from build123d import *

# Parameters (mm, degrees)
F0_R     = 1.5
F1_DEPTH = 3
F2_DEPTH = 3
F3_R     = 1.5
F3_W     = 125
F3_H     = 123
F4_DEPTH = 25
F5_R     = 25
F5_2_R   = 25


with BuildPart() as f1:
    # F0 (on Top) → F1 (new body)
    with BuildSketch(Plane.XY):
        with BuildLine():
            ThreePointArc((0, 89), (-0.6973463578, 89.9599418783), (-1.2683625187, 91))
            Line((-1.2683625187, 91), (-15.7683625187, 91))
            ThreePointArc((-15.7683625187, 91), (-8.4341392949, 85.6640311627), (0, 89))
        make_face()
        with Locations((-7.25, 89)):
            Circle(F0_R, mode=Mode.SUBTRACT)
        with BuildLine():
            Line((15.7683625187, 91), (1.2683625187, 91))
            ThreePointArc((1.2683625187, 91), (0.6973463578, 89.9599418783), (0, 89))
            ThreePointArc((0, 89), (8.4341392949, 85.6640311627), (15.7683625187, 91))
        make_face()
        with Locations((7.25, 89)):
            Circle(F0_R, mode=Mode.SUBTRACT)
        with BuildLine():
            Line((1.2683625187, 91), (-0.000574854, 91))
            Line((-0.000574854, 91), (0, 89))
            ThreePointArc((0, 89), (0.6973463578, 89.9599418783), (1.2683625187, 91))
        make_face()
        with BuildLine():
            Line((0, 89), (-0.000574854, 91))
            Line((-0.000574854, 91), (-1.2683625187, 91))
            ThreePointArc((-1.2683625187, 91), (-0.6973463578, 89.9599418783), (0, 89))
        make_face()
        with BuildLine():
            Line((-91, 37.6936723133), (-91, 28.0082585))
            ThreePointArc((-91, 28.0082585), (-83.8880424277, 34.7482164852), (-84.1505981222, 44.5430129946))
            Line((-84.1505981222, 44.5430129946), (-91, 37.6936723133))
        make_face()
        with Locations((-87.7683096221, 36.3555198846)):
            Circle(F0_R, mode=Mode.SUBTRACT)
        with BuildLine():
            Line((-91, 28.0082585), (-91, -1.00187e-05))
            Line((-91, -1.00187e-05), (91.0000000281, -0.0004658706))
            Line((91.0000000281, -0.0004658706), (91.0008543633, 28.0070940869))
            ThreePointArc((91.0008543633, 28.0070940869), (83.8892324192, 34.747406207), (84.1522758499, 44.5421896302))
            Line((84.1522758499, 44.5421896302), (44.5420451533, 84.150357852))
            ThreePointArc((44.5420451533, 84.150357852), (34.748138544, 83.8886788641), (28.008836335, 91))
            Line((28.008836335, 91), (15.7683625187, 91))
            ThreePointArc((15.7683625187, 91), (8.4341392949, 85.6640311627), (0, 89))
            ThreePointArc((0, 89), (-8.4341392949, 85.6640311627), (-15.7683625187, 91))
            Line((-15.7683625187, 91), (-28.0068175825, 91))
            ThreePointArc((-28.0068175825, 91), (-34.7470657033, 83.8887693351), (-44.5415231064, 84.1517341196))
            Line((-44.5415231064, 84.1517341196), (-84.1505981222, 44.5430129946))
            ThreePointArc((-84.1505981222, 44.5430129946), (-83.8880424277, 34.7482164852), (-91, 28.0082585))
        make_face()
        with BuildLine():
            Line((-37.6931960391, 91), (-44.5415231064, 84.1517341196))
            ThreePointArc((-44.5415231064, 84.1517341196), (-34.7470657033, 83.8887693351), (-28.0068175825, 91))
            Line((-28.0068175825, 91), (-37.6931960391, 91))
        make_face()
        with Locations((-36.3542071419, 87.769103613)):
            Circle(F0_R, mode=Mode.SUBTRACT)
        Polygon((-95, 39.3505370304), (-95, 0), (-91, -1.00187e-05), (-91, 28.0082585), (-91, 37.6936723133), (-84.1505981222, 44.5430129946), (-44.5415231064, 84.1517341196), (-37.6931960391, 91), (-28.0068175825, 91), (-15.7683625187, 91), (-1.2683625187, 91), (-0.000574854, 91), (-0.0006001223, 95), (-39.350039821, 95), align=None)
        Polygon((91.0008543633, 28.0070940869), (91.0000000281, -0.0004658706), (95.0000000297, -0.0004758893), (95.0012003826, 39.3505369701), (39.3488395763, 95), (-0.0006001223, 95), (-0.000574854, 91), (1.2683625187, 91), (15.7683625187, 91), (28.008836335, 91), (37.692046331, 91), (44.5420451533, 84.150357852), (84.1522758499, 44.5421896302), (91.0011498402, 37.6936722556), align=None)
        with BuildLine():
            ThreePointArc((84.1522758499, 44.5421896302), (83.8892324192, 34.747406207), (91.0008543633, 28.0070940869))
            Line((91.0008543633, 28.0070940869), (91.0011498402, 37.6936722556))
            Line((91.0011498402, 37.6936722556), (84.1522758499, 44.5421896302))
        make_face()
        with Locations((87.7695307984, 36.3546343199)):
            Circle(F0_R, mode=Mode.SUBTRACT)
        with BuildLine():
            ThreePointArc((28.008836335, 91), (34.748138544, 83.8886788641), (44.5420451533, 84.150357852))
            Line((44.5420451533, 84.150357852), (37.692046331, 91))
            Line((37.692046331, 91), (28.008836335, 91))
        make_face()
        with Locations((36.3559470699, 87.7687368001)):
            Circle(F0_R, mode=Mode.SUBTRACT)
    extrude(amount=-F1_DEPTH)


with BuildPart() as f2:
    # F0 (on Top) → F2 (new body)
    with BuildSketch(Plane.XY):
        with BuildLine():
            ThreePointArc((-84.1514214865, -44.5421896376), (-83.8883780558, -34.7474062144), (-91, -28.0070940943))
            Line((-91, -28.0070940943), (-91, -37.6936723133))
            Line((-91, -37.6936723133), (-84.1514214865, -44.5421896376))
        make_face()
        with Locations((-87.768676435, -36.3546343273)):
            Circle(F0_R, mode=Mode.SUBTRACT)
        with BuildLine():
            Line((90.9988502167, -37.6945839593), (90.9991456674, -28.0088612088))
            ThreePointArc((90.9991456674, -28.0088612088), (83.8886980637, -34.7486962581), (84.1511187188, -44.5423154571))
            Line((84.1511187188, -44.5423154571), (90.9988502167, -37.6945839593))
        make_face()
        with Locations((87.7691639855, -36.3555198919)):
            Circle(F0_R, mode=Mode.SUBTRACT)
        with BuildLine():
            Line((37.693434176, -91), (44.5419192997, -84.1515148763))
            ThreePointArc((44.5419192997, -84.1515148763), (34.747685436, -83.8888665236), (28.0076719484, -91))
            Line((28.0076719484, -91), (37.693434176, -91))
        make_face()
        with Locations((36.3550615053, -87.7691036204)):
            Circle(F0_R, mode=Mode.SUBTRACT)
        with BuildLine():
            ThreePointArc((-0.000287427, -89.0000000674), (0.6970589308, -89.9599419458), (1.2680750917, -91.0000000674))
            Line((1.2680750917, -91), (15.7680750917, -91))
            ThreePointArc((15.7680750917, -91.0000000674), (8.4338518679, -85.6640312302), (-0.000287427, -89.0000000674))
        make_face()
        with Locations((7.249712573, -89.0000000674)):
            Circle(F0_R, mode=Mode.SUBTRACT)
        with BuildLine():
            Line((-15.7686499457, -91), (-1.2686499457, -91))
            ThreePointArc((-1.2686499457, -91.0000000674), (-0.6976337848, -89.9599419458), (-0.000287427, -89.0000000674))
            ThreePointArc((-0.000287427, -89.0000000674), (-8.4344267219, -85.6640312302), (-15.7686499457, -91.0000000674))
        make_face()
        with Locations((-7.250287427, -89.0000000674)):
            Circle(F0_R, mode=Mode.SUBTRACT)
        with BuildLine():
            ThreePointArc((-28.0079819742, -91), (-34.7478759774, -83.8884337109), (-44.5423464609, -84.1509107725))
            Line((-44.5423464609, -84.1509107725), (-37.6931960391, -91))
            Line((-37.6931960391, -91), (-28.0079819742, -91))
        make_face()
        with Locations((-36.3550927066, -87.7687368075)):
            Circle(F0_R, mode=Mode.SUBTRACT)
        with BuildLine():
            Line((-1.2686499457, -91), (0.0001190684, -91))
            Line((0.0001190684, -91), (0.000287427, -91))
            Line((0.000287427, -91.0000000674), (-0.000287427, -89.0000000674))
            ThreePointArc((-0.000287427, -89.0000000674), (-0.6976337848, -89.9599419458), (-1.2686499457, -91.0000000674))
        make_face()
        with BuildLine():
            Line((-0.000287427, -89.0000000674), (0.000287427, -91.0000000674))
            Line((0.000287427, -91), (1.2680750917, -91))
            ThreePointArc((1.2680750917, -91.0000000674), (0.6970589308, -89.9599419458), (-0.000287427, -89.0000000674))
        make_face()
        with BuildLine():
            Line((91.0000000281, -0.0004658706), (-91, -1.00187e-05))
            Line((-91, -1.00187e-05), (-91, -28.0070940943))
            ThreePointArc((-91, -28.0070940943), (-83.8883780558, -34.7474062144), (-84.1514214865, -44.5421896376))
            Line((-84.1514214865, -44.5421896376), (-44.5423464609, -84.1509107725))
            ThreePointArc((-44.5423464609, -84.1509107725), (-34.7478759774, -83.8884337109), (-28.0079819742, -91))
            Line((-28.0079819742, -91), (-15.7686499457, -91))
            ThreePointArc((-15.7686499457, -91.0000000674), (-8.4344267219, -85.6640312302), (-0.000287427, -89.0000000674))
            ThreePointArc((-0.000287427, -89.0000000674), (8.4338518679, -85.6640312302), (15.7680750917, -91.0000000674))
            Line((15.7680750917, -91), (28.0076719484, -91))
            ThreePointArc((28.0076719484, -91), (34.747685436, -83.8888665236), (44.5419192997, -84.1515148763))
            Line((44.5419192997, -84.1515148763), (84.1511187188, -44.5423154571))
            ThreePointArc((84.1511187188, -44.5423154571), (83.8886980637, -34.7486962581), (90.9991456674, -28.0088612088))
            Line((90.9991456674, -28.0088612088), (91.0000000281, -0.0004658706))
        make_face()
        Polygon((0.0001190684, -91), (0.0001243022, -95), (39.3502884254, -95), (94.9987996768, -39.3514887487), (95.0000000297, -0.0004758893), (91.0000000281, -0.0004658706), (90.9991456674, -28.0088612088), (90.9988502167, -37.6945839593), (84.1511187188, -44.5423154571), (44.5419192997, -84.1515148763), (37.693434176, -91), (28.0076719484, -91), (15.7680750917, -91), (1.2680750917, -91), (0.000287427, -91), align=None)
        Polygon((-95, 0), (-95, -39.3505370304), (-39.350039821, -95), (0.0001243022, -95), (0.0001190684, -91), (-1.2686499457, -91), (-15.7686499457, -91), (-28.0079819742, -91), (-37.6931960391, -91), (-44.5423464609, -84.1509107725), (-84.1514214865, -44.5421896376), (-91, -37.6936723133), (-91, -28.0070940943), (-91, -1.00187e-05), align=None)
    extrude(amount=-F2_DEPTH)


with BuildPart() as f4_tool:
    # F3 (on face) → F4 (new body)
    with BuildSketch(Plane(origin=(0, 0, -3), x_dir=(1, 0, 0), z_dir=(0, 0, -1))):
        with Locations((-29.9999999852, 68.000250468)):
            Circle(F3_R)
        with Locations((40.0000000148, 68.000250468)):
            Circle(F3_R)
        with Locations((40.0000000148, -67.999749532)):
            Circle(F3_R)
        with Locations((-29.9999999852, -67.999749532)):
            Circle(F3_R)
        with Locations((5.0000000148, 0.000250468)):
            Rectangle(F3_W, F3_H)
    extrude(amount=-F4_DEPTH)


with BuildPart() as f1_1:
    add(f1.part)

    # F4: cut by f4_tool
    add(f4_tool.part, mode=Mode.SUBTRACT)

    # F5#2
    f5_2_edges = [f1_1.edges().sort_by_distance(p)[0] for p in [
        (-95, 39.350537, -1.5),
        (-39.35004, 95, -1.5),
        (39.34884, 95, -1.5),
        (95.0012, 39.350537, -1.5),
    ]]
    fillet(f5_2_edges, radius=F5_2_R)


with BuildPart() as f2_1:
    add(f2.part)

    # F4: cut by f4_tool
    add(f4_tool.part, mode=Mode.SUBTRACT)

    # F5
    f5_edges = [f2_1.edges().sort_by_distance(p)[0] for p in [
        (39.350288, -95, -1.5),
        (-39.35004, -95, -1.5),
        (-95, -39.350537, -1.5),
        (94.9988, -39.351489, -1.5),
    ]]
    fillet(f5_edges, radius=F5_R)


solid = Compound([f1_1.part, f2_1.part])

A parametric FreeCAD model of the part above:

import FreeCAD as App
import Part
import Sketcher

V = App.Vector
Q = App.Units.Quantity


def edges_at(feature, points):
    """Names of the edges that pass closest to the given points."""
    edges = feature.Shape.Edges
    near = lambda p: min(range(len(edges)), key=lambda i: edges[i].distToShape(Part.Vertex(*p))[0])
    return sorted({f"Edge{near(p) + 1}" for p in points})

doc = App.newDocument("Part")
params = doc.addObject("Spreadsheet::Sheet", "Params")
for row, (alias, value) in enumerate([
    ("sketch1_diameter", "3 mm"),
    ("sketch1_length", "4 mm"),
    ("sketch1_length2", "182 mm"),
    ("pad1_length", "3 mm"),
    ("sketch2_diameter", "3 mm"),
    ("sketch2_length", "4 mm"),
    ("sketch2_length2", "182 mm"),
    ("pad2_length", "3 mm"),
    ("sketch3_diameter", "3 mm"),
    ("sketch3_width", "125 mm"),
    ("sketch3_height", "123 mm"),
    ("pad3_length", "25 mm"),
    ("fillet_radius", "25 mm"),
    ("fillet2_radius", "25 mm"),
], start=1):
    params.set(f"A{row}", alias)
    params.set(f"B{row}", "=" + value)
    params.setAlias(f"B{row}", alias)

body = doc.addObject("PartDesign::Body", "Body")

sketch1 = body.newObject("Sketcher::SketchObject", "Sketch")
sketch1.AttachmentSupport = (doc.getObject("XY_Plane"), [""])
sketch1.MapMode = "FlatFace"
sketch1.addGeometry([
    Part.LineSegment(V(39.34884, 95, 0), V(-39.35004, 95, 0)),
    Part.LineSegment(V(-39.35004, 95, 0), V(-95, 39.350537, 0)),
    Part.LineSegment(V(-95, 39.350537, 0), V(-95, 0, 0)),
    Part.LineSegment(V(-95, 0, 0), V(-91, -0.00001, 0)),
    Part.LineSegment(V(-91, -0.00001, 0), V(91, -0.000466, 0)),
    Part.LineSegment(V(91, -0.000466, 0), V(95, -0.000476, 0)),
    Part.LineSegment(V(95, -0.000476, 0), V(95.0012, 39.350537, 0)),
    Part.LineSegment(V(95.0012, 39.350537, 0), V(39.34884, 95, 0)),
    Part.Circle(V(-87.76831, 36.35552, 0), V(0, 0, 1), 1.5),
    Part.Circle(V(87.769531, 36.354634, 0), V(0, 0, 1), 1.5),
    Part.Circle(V(-36.354207, 87.769104, 0), V(0, 0, 1), 1.5),
    Part.Circle(V(-7.25, 89, 0), V(0, 0, 1), 1.5),
    Part.Circle(V(7.25, 89, 0), V(0, 0, 1), 1.5),
    Part.Circle(V(36.355947, 87.768737, 0), V(0, 0, 1), 1.5),
], False)
sketch1.addConstraint([
    Sketcher.Constraint("Coincident", 0, 2, 1, 1),
    Sketcher.Constraint("Coincident", 1, 2, 2, 1),
    Sketcher.Constraint("Coincident", 2, 2, 3, 1),
    Sketcher.Constraint("Coincident", 3, 2, 4, 1),
    Sketcher.Constraint("Coincident", 4, 2, 5, 1),
    Sketcher.Constraint("Coincident", 5, 2, 6, 1),
    Sketcher.Constraint("Coincident", 6, 2, 7, 1),
    Sketcher.Constraint("Coincident", 7, 2, 0, 1),
    Sketcher.Constraint("Horizontal", 0),
    Sketcher.Constraint("Vertical", 2),
    Sketcher.Constraint("Equal", 8, 9),
    Sketcher.Constraint("Equal", 9, 10),
    Sketcher.Constraint("Equal", 10, 11),
    Sketcher.Constraint("Equal", 11, 12),
    Sketcher.Constraint("Equal", 12, 13),
    Sketcher.Constraint("Symmetric", 11, 3, 12, 3, -2),
    Sketcher.Constraint("PointOnObject", 2, 2, -1),
    Sketcher.Constraint("Parallel", 3, 4),
    Sketcher.Constraint("Parallel", 4, 5),
    Sketcher.Constraint("Horizontal", 1, 2, 6, 2),
    Sketcher.Constraint("Equal", 3, 5),
    Sketcher.Constraint("Diameter", 8, Q("3 mm")),
    Sketcher.Constraint("Distance", 3, Q("4 mm")),
    Sketcher.Constraint("Distance", 4, Q("182 mm")),
    Sketcher.Constraint("DistanceY", -1, 1, 11, 3, Q("89 mm")),
    Sketcher.Constraint("DistanceY", -1, 1, 0, 2, Q("95 mm")),
    Sketcher.Constraint("DistanceX", 1, 2, -1, 1, Q("95 mm")),
    Sketcher.Constraint("DistanceX", 11, 3, 12, 3, Q("14.5 mm")),
    Sketcher.Constraint("DistanceX", 0, 2, 0, 1, Q("78.698879 mm")),
    Sketcher.Constraint("DistanceX", -1, 1, 6, 2, Q("95.0012 mm")),
    Sketcher.Constraint("DistanceY", 4, 2, 9, 3, Q("36.3551 mm")),
    Sketcher.Constraint("DistanceY", 6, 2, 13, 3, Q("48.4182 mm")),
    Sketcher.Constraint("DistanceY", 2, 2, 2, 1, Q("39.350537 mm")),
    Sketcher.Constraint("DistanceX", 8, 3, -1, 1, Q("87.76831 mm")),
    Sketcher.Constraint("DistanceY", -1, 1, 8, 3, Q("36.35552 mm")),
    Sketcher.Constraint("DistanceX", -1, 1, 9, 3, Q("87.769531 mm")),
    Sketcher.Constraint("DistanceX", 0, 2, -1, 1, Q("39.35004 mm")),
    Sketcher.Constraint("DistanceY", 9, 3, 10, 3, Q("51.414469 mm")),
    Sketcher.Constraint("DistanceY", 3, 2, 8, 3, Q("36.35553 mm")),
    Sketcher.Constraint("DistanceX", 10, 3, -1, 1, Q("36.354207 mm")),
    Sketcher.Constraint("DistanceX", -1, 1, 13, 3, Q("36.355947 mm")),
])
sketch1.setExpression("Constraints[21]", "Params.sketch1_diameter")
sketch1.setExpression("Constraints[22]", "Params.sketch1_length")
sketch1.setExpression("Constraints[23]", "Params.sketch1_length2")
pad1 = body.newObject("PartDesign::Pad", "Pad")
pad1.Profile = sketch1
pad1.setExpression("Length", "Params.pad1_length")
pad1.Reversed = True
body2 = doc.addObject("PartDesign::Body", "Body001")

sketch2 = body2.newObject("Sketcher::SketchObject", "Sketch001")
sketch2.AttachmentSupport = (doc.getObject("XY_Plane001"), [""])
sketch2.MapMode = "FlatFace"
sketch2.addGeometry([
    Part.LineSegment(V(39.350288, -95, 0), V(94.9988, -39.351489, 0)),
    Part.LineSegment(V(94.9988, -39.351489, 0), V(95, -0.000476, 0)),
    Part.LineSegment(V(95, -0.000476, 0), V(91, -0.000466, 0)),
    Part.LineSegment(V(91, -0.000466, 0), V(-91, -0.00001, 0)),
    Part.LineSegment(V(-91, -0.00001, 0), V(-95, 0, 0)),
    Part.LineSegment(V(-95, 0, 0), V(-95, -39.350537, 0)),
    Part.LineSegment(V(-95, -39.350537, 0), V(-39.35004, -95, 0)),
    Part.LineSegment(V(-39.35004, -95, 0), V(39.350288, -95, 0)),
    Part.Circle(V(-87.768676, -36.354634, 0), V(0, 0, 1), 1.5),
    Part.Circle(V(-36.355093, -87.768737, 0), V(0, 0, 1), 1.5),
    Part.Circle(V(7.249713, -89, 0), V(0, 0, 1), 1.5),
    Part.Circle(V(-7.250287, -89, 0), V(0, 0, 1), 1.5),
    Part.Circle(V(36.355062, -87.769104, 0), V(0, 0, 1), 1.5),
    Part.Circle(V(87.769164, -36.35552, 0), V(0, 0, 1), 1.5),
], False)
sketch2.addConstraint([
    Sketcher.Constraint("Coincident", 0, 2, 1, 1),
    Sketcher.Constraint("Coincident", 1, 2, 2, 1),
    Sketcher.Constraint("Coincident", 2, 2, 3, 1),
    Sketcher.Constraint("Coincident", 3, 2, 4, 1),
    Sketcher.Constraint("Coincident", 4, 2, 5, 1),
    Sketcher.Constraint("Coincident", 5, 2, 6, 1),
    Sketcher.Constraint("Coincident", 6, 2, 7, 1),
    Sketcher.Constraint("Coincident", 7, 2, 0, 1),
    Sketcher.Constraint("Vertical", 5),
    Sketcher.Constraint("Horizontal", 7),
    Sketcher.Constraint("Equal", 8, 9),
    Sketcher.Constraint("Equal", 9, 10),
    Sketcher.Constraint("Equal", 10, 11),
    Sketcher.Constraint("Equal", 11, 12),
    Sketcher.Constraint("Equal", 12, 13),
    Sketcher.Constraint("PointOnObject", 4, 2, -1),
    Sketcher.Constraint("Parallel", 2, 3),
    Sketcher.Constraint("Parallel", 3, 4),
    Sketcher.Constraint("Horizontal", 10, 3, 11, 3),
    Sketcher.Constraint("Equal", 2, 4),
    Sketcher.Constraint("Diameter", 8, Q("3 mm")),
    Sketcher.Constraint("Angle", 0, Q("45 deg")),
    Sketcher.Constraint("Distance", 2, Q("4 mm")),
    Sketcher.Constraint("Distance", 3, Q("182 mm")),
    Sketcher.Constraint("DistanceY", 10, 3, -1, 1, Q("89 mm")),
    Sketcher.Constraint("DistanceX", -1, 1, 1, 2, Q("95 mm")),
    Sketcher.Constraint("DistanceY", 6, 2, -1, 1, Q("95 mm")),
    Sketcher.Constraint("DistanceX", 11, 3, 10, 3, Q("14.5 mm")),
    Sketcher.Constraint("DistanceX", 7, 1, 7, 2, Q("78.700328 mm")),
    Sketcher.Constraint("DistanceX", -1, 1, 0, 2, Q("94.9988 mm")),
    Sketcher.Constraint("DistanceY", 9, 3, 5, 2, Q("48.4182 mm")),
    Sketcher.Constraint("DistanceX", 6, 2, 12, 3, Q("75.705101 mm")),
    Sketcher.Constraint("Distance", 0, Q("78.698879 mm")),
    Sketcher.Constraint("DistanceY", 5, 2, 5, 1, Q("39.350537 mm")),
    Sketcher.Constraint("DistanceY", 13, 3, -1, 1, Q("36.35552 mm")),
    Sketcher.Constraint("DistanceX", 8, 3, 10, 3, Q("95.018389 mm")),
    Sketcher.Constraint("DistanceX", 10, 3, 12, 3, Q("29.105349 mm")),
    Sketcher.Constraint("DistanceY", 12, 3, 8, 3, Q("51.414469 mm")),
    Sketcher.Constraint("DistanceX", 10, 3, 13, 3, Q("80.519451 mm")),
    Sketcher.Constraint("DistanceY", 11, 3, 3, 2, Q("88.99999 mm")),
    Sketcher.Constraint("DistanceX", 9, 3, 7, 2, Q("75.705381 mm")),
    Sketcher.Constraint("DistanceY", 8, 3, -1, 1, Q("36.354634 mm")),
])
sketch2.setExpression("Constraints[20]", "Params.sketch2_diameter")
sketch2.setExpression("Constraints[22]", "Params.sketch2_length")
sketch2.setExpression("Constraints[23]", "Params.sketch2_length2")
pad2 = body2.newObject("PartDesign::Pad", "Pad001")
pad2.Profile = sketch2
pad2.setExpression("Length", "Params.pad2_length")
pad2.Reversed = True
body3 = doc.addObject("PartDesign::Body", "Body002")
body3.AllowCompound = True

sketch3 = body3.newObject("Sketcher::SketchObject", "Sketch002")
sketch3.AttachmentSupport = (doc.getObject("XY_Plane002"), [""])
sketch3.MapMode = "FlatFace"
sketch3.AttachmentOffset = App.Placement(V(0, 0, -3), App.Rotation())
sketch3.addGeometry([
    Part.Circle(V(-30, -68.00025, 0), V(0, 0, 1), 1.5),
    Part.Circle(V(40, -68.00025, 0), V(0, 0, 1), 1.5),
    Part.Circle(V(40, 67.99975, 0), V(0, 0, 1), 1.5),
    Part.Circle(V(-30, 67.99975, 0), V(0, 0, 1), 1.5),
    Part.LineSegment(V(-57.5, -61.50025, 0), V(-57.5, 61.49975, 0)),
    Part.LineSegment(V(-57.5, 61.49975, 0), V(67.5, 61.49975, 0)),
    Part.LineSegment(V(67.5, 61.49975, 0), V(67.5, -61.50025, 0)),
    Part.LineSegment(V(67.5, -61.50025, 0), V(-57.5, -61.50025, 0)),
], False)
sketch3.addConstraint([
    Sketcher.Constraint("Coincident", 4, 2, 5, 1),
    Sketcher.Constraint("Coincident", 5, 2, 6, 1),
    Sketcher.Constraint("Coincident", 6, 2, 7, 1),
    Sketcher.Constraint("Coincident", 7, 2, 4, 1),
    Sketcher.Constraint("Vertical", 4),
    Sketcher.Constraint("Horizontal", 5),
    Sketcher.Constraint("Vertical", 6),
    Sketcher.Constraint("Horizontal", 7),
    Sketcher.Constraint("Equal", 0, 1),
    Sketcher.Constraint("Equal", 1, 2),
    Sketcher.Constraint("Equal", 2, 3),
    Sketcher.Constraint("Horizontal", 0, 3, 1, 3),
    Sketcher.Constraint("Horizontal", 2, 3, 3, 3),
    Sketcher.Constraint("Vertical", 1, 3, 2, 3),
    Sketcher.Constraint("Vertical", 0, 3, 3, 3),
    Sketcher.Constraint("Diameter", 0, Q("3 mm")),
    Sketcher.Constraint("DistanceX", 5, 1, 5, 2, Q("125 mm")),
    Sketcher.Constraint("DistanceY", 4, 1, 4, 2, Q("123 mm")),
    Sketcher.Constraint("DistanceX", 0, 3, -1, 1, Q("30 mm")),
    Sketcher.Constraint("DistanceX", -1, 1, 1, 3, Q("40 mm")),
    Sketcher.Constraint("DistanceY", 1, 3, 2, 3, Q("136 mm")),
    Sketcher.Constraint("DistanceX", 4, 2, -1, 1, Q("57.5 mm")),
    Sketcher.Constraint("DistanceY", 4, 2, 3, 3, Q("6.5 mm")),
    Sketcher.Constraint("DistanceY", 0, 3, -1, 1, Q("68.00025 mm")),
])
sketch3.setExpression("Constraints[15]", "Params.sketch3_diameter")
sketch3.setExpression("Constraints[16]", "Params.sketch3_width")
sketch3.setExpression("Constraints[17]", "Params.sketch3_height")
pad3 = body3.newObject("PartDesign::Pad", "Pad002")
pad3.Profile = sketch3
pad3.setExpression("Length", "Params.pad3_length")
doc.recompute()

body4 = doc.addObject("PartDesign::Body", "Body003")
body4.BaseFeature = body3
boolean = body.newObject("PartDesign::Boolean", "Boolean")
boolean.Type = "Cut"
boolean.addObjects([body4])
doc.recompute()

fillet = body.newObject("PartDesign::Fillet", "Fillet")
fillet.Base = (boolean, edges_at(boolean, [
    (-95, 39.351, -1.5),
    (-39.35, 95, -1.5),
    (39.349, 95, -1.5),
    (95.001, 39.351, -1.5),
]))
fillet.setExpression("Radius", "Params.fillet_radius")
doc.recompute()

boolean2 = body2.newObject("PartDesign::Boolean", "Boolean001")
boolean2.Type = "Cut"
boolean2.addObjects([body3])
doc.recompute()

fillet2 = body2.newObject("PartDesign::Fillet", "Fillet001")
fillet2.Base = (boolean2, edges_at(boolean2, [
    (39.35, -95, -1.5),
    (-39.35, -95, -1.5),
    (-95, -39.351, -1.5),
    (94.999, -39.351, -1.5),
]))
fillet2.setExpression("Radius", "Params.fillet2_radius")

doc.recompute()
